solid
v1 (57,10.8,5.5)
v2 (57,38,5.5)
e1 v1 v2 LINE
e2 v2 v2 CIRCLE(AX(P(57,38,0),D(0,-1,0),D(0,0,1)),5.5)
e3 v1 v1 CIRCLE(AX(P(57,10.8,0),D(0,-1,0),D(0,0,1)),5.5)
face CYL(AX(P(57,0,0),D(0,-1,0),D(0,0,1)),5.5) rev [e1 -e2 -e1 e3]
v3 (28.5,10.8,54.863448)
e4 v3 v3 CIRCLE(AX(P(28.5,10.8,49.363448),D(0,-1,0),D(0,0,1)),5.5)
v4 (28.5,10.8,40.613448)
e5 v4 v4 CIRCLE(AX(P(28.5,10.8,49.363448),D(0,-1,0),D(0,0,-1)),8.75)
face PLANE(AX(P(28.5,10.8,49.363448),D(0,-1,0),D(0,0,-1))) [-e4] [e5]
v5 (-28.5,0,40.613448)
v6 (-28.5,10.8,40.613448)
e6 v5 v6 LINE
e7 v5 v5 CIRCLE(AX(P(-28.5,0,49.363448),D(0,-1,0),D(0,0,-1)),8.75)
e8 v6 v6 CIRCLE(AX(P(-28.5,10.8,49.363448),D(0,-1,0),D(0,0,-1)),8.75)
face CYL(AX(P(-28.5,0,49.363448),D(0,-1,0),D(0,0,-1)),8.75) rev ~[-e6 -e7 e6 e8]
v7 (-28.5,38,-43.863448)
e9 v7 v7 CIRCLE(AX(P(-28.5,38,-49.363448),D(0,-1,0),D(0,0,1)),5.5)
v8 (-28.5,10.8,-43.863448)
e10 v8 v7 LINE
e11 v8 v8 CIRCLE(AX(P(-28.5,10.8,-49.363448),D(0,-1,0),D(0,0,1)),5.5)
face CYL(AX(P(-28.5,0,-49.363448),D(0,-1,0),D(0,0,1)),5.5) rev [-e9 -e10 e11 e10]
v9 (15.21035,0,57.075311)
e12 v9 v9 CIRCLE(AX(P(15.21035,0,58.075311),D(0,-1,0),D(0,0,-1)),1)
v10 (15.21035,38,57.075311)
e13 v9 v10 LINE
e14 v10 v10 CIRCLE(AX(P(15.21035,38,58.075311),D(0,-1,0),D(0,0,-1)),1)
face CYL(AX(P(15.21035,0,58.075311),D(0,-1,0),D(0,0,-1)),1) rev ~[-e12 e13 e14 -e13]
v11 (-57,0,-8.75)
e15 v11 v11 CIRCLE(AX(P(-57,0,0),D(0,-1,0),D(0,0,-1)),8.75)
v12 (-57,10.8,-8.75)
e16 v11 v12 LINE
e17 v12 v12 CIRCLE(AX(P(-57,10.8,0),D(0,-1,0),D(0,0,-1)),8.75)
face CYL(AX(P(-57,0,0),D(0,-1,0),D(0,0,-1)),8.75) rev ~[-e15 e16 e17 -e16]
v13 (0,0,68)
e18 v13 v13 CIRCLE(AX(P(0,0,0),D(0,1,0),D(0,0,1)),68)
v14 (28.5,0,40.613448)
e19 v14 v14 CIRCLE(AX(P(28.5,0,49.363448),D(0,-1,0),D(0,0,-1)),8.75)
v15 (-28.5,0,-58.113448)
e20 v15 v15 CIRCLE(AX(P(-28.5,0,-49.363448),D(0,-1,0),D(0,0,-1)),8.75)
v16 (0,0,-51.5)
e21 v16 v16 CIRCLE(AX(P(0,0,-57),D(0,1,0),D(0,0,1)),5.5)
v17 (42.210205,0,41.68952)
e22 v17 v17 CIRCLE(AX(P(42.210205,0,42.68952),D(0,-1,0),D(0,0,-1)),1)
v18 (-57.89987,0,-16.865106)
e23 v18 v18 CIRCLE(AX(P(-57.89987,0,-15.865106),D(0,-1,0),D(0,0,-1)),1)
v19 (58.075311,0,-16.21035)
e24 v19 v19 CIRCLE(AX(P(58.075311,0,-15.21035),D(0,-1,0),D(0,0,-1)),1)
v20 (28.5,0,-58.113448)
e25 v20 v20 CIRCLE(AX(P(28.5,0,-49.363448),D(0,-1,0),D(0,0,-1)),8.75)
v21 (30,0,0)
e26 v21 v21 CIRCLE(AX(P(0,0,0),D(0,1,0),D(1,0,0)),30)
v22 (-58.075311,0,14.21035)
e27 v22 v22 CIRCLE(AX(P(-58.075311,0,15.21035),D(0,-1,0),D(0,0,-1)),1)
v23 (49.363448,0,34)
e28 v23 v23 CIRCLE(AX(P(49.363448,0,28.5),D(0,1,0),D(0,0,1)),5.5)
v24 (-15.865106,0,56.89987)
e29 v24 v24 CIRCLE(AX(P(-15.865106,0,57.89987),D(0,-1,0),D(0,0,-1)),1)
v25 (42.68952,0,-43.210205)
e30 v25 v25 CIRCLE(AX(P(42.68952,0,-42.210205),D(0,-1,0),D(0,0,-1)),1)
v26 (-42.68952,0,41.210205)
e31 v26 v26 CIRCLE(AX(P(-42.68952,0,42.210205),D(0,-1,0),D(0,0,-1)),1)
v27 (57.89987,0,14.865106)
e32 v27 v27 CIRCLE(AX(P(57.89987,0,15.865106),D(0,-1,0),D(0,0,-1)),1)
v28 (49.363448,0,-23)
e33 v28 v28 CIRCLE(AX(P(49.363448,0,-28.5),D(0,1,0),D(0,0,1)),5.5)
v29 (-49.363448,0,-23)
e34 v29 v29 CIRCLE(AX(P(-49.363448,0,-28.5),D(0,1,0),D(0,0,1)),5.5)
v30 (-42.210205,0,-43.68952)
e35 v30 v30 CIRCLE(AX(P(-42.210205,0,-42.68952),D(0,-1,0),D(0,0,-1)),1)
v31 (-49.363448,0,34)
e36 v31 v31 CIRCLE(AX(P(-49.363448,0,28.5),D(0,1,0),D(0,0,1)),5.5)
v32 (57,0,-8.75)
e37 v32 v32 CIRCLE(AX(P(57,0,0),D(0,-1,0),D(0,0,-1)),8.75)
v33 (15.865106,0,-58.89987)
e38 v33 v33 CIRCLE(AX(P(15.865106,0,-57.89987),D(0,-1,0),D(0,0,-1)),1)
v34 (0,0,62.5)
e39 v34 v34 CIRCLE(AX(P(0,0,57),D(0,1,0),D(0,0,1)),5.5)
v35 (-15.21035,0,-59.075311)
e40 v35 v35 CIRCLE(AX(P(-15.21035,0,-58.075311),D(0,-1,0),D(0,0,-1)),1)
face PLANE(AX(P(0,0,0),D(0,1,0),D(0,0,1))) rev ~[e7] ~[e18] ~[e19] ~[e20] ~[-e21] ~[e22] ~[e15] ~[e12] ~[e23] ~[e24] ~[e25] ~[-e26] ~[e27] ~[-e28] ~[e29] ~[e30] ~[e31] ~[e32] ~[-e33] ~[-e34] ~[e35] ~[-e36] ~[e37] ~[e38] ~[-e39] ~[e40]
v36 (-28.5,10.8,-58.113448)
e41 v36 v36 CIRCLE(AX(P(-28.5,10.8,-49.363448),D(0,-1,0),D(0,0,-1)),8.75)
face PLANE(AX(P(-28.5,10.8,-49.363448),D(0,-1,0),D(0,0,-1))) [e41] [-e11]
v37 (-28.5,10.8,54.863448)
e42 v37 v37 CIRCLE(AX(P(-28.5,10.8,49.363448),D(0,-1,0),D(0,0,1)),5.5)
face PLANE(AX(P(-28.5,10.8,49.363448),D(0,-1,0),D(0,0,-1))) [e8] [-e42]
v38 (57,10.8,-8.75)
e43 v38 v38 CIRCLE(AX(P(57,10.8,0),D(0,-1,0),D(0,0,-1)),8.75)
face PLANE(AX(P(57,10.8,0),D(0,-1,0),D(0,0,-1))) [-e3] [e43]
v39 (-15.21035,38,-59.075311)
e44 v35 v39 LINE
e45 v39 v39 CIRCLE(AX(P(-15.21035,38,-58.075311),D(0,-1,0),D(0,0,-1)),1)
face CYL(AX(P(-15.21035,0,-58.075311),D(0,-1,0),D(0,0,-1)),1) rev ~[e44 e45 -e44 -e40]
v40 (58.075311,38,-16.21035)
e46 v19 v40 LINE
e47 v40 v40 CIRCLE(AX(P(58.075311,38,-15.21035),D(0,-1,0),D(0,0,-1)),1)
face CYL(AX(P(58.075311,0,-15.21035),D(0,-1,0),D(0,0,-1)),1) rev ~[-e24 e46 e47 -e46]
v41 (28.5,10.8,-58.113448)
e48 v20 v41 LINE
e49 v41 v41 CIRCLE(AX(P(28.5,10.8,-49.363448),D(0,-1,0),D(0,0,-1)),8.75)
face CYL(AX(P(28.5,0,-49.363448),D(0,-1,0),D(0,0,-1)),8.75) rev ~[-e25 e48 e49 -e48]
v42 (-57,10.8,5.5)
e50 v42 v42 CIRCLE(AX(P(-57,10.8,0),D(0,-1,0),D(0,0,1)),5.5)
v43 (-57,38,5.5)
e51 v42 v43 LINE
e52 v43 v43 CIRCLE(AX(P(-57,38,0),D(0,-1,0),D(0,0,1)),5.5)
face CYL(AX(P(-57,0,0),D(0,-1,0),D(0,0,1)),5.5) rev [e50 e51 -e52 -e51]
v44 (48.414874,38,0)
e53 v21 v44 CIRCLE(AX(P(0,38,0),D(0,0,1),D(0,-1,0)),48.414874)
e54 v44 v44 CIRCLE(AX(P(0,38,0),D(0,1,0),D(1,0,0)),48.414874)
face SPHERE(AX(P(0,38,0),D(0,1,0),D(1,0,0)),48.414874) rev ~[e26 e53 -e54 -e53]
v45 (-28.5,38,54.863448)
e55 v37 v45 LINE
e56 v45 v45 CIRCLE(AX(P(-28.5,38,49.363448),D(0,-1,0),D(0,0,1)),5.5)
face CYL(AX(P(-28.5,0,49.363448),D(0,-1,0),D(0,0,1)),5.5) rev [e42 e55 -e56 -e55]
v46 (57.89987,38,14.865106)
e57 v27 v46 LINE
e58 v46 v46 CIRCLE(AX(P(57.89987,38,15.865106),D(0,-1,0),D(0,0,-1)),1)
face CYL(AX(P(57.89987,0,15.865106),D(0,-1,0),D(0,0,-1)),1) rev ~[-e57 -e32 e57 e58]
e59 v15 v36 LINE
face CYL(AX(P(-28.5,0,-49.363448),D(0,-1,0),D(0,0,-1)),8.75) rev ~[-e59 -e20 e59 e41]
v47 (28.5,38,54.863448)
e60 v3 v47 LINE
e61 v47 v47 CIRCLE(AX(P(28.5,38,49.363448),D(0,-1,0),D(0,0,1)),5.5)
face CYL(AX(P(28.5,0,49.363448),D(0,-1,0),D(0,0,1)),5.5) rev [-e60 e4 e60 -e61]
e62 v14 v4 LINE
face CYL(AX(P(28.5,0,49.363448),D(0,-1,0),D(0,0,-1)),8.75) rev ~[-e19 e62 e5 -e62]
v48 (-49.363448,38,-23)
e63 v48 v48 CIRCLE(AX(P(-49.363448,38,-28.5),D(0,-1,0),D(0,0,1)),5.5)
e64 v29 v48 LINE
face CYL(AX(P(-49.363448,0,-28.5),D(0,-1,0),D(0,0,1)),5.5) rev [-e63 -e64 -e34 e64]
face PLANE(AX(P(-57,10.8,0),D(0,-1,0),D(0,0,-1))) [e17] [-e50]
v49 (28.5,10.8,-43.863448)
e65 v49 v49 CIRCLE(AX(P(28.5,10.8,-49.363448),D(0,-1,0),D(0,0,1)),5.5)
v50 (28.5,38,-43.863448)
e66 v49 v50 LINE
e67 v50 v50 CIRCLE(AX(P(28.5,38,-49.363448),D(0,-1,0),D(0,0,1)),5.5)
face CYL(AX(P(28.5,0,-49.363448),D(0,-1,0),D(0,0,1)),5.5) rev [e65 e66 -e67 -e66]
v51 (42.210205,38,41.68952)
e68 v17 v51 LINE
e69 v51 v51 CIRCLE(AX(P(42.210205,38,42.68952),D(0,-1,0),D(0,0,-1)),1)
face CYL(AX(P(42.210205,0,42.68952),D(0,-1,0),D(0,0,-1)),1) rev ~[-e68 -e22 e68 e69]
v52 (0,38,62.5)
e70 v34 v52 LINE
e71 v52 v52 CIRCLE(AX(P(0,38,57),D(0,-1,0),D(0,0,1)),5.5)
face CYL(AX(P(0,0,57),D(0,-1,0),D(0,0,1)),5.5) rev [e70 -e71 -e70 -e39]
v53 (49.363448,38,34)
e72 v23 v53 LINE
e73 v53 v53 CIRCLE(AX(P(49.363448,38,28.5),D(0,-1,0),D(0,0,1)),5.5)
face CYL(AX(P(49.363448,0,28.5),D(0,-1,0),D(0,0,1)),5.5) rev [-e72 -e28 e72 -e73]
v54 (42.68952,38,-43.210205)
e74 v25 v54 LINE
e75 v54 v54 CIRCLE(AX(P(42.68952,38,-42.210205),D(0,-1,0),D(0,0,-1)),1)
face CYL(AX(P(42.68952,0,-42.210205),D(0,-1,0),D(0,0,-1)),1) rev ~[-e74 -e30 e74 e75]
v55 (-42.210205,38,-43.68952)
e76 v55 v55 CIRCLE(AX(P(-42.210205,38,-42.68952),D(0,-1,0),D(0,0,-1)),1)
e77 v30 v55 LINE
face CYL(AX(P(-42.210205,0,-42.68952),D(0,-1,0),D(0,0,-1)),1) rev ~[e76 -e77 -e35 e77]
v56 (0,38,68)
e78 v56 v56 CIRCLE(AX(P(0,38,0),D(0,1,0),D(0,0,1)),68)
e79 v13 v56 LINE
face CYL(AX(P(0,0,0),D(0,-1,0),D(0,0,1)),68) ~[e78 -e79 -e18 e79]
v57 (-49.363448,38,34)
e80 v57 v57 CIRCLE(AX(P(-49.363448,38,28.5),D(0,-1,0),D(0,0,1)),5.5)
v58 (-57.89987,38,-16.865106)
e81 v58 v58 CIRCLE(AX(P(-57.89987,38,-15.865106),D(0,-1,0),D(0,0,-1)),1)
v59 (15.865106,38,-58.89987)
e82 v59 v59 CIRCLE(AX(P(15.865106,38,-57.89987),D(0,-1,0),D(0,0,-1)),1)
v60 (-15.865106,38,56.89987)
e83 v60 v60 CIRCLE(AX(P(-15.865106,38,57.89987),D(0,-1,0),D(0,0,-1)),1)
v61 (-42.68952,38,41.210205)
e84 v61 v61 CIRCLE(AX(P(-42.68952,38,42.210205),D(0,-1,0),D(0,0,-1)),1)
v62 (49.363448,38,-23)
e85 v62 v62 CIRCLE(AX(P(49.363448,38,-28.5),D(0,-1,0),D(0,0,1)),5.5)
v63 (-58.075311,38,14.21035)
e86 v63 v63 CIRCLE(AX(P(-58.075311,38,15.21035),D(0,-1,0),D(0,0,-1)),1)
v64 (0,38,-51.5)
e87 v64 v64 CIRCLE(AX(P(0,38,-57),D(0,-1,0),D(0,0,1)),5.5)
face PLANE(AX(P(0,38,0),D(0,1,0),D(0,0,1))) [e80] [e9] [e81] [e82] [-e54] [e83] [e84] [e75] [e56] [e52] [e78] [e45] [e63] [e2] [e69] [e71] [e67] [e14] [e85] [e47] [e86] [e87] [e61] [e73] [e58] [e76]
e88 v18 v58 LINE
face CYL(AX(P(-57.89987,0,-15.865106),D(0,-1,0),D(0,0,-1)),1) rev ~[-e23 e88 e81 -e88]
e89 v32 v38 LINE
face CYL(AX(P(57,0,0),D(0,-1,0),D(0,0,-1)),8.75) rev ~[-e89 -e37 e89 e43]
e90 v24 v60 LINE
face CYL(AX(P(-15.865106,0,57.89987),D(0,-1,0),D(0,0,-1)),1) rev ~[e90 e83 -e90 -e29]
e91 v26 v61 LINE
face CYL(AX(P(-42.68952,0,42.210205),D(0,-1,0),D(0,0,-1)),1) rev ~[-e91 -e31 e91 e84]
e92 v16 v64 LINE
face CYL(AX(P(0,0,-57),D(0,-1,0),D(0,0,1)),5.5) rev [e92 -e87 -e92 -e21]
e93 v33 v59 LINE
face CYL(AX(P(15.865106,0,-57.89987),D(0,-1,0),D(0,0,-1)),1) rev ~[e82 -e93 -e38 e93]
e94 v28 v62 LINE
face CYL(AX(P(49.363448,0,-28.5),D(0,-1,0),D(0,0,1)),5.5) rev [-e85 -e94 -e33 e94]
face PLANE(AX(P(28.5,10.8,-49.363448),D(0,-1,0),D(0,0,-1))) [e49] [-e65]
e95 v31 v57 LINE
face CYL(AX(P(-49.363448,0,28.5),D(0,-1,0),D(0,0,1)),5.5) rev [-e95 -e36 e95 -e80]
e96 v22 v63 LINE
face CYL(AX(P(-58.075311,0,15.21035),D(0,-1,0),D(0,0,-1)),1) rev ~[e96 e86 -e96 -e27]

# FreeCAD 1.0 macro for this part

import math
import FreeCAD as App
import Part
import Sketcher
from FreeCAD import Vector
Q = App.Units.Quantity

doc = App.newDocument("Part")
body = doc.addObject("PartDesign::Body", "Body")

sketch1 = doc.addObject("Sketcher::SketchObject", "Sketch")
body.addObject(sketch1)
sketch1.AttachmentSupport = (doc.XZ_Plane, [""])
sketch1.MapMode = "FlatFace"
sketch1.addGeometry(Part.Circle(Vector(0, 0, 0), Vector(0, 0, 1), 68), False)
sketch1.addGeometry(Part.Circle(Vector(-49, -28, 0), Vector(0, 0, 1), 6), False)
sketch1.addGeometry(Part.Circle(Vector(-28, -49, 0), Vector(0, 0, 1), 6), False)
sketch1.addGeometry(Part.Circle(Vector(0, -57, 0), Vector(0, 0, 1), 6), False)
sketch1.addGeometry(Part.Circle(Vector(-57, 0, 0), Vector(0, 0, 1), 6), False)
sketch1.addGeometry(Part.Circle(Vector(-49, 28, 0), Vector(0, 0, 1), 6), False)
sketch1.addGeometry(Part.Circle(Vector(-28, 49, 0), Vector(0, 0, 1), 6), False)
sketch1.addGeometry(Part.Circle(Vector(28, -49, 0), Vector(0, 0, 1), 6), False)
sketch1.addGeometry(Part.Circle(Vector(49, -28, 0), Vector(0, 0, 1), 6), False)
sketch1.addGeometry(Part.Circle(Vector(57, 0, 0), Vector(0, 0, 1), 6), False)
sketch1.addGeometry(Part.Circle(Vector(0, 57, 0), Vector(0, 0, 1), 6), False)
sketch1.addGeometry(Part.Circle(Vector(28, 49, 0), Vector(0, 0, 1), 6), False)
sketch1.addGeometry(Part.Circle(Vector(49, 28, 0), Vector(0, 0, 1), 6), False)
sketch1.addConstraint(Sketcher.Constraint("Coincident", 0, 3, -1, 1))
sketch1.addConstraint(Sketcher.Constraint("Equal", 1, 2))
sketch1.addConstraint(Sketcher.Constraint("Equal", 2, 3))
sketch1.addConstraint(Sketcher.Constraint("Equal", 3, 4))
sketch1.addConstraint(Sketcher.Constraint("Equal", 4, 5))
sketch1.addConstraint(Sketcher.Constraint("Equal", 5, 6))
sketch1.addConstraint(Sketcher.Constraint("Equal", 6, 7))
sketch1.addConstraint(Sketcher.Constraint("Equal", 7, 8))
sketch1.addConstraint(Sketcher.Constraint("Equal", 8, 9))
sketch1.addConstraint(Sketcher.Constraint("Equal", 9, 10))
sketch1.addConstraint(Sketcher.Constraint("Equal", 10, 11))
sketch1.addConstraint(Sketcher.Constraint("Equal", 11, 12))
sketch1.addConstraint(Sketcher.Constraint("Symmetric", 6, 3, 7, 3, -1, 1))
sketch1.addConstraint(Sketcher.Constraint("Symmetric", 5, 3, 8, 3, -1, 1))
sketch1.addConstraint(Sketcher.Constraint("Symmetric", 4, 3, 9, 3, -1, 1))
sketch1.addConstraint(Sketcher.Constraint("Symmetric", 3, 3, 10, 3, -1, 1))
sketch1.addConstraint(Sketcher.Constraint("Symmetric", 2, 3, 11, 3, -1, 1))
sketch1.addConstraint(Sketcher.Constraint("Symmetric", 1, 3, 12, 3, -1, 1))
sketch1.addConstraint(Sketcher.Constraint("Symmetric", 2, 3, 7, 3, -2))
sketch1.addConstraint(Sketcher.Constraint("Symmetric", 1, 3, 8, 3, -2))
sketch1.addConstraint(Sketcher.Constraint("PointOnObject", 3, 3, -2))
sketch1.addConstraint(Sketcher.Constraint("PointOnObject", 4, 3, -1))
sketch1.addConstraint(Sketcher.Constraint("Diameter", 0, Q("136 mm")))
sketch1.addConstraint(Sketcher.Constraint("Diameter", 1, Q("11 mm")))
sketch1.addConstraint(Sketcher.Constraint("DistanceY", 3, 3, -1, 1, Q("57 mm")))
sketch1.addConstraint(Sketcher.Constraint("DistanceX", 4, 3, -1, 1, Q("57 mm")))
sketch1.addConstraint(Sketcher.Constraint("DistanceY", 1, 3, 5, 3, Q("57 mm")))
sketch1.addConstraint(Sketcher.Constraint("DistanceX", 2, 3, 7, 3, Q("57 mm")))
sketch1.addConstraint(Sketcher.Constraint("DistanceX", 1, 3, -1, 1, Q("49.363448 mm")))
sketch1.addConstraint(Sketcher.Constraint("DistanceY", 2, 3, -1, 1, Q("49.363448 mm")))
pad1 = doc.addObject("PartDesign::Pad", "Pad")
body.addObject(pad1)
pad1.Profile = sketch1
pad1.Length = 60
pad1.Reversed = True

sketch2 = doc.addObject("Sketcher::SketchObject", "Sketch001")
body.addObject(sketch2)
sketch2.AttachmentSupport = (doc.XZ_Plane, [""])
sketch2.MapMode = "FlatFace"
sketch2.AttachmentOffset = App.Placement(Vector(0, 0, -60), App.Rotation())
sketch2.addGeometry(Part.Circle(Vector(0, -57, 0), Vector(0, 0, 1), 9), False)
sketch2.addGeometry(Part.Circle(Vector(49, -28, 0), Vector(0, 0, 1), 9), False)
sketch2.addGeometry(Part.Circle(Vector(49, 28, 0), Vector(0, 0, 1), 9), False)
sketch2.addGeometry(Part.Circle(Vector(0, 57, 0), Vector(0, 0, 1), 9), False)
sketch2.addGeometry(Part.Circle(Vector(-49, 28, 0), Vector(0, 0, 1), 9), False)
sketch2.addGeometry(Part.Circle(Vector(-49, -28, 0), Vector(0, 0, 1), 9), False)
sketch2.addConstraint(Sketcher.Constraint("Equal", 0, 1))
sketch2.addConstraint(Sketcher.Constraint("Equal", 1, 2))
sketch2.addConstraint(Sketcher.Constraint("Equal", 2, 3))
sketch2.addConstraint(Sketcher.Constraint("Equal", 3, 4))
sketch2.addConstraint(Sketcher.Constraint("Equal", 4, 5))
sketch2.addConstraint(Sketcher.Constraint("Symmetric", 0, 3, 3, 3, -1, 1))
sketch2.addConstraint(Sketcher.Constraint("Symmetric", 1, 3, 4, 3, -1, 1))
sketch2.addConstraint(Sketcher.Constraint("Symmetric", 2, 3, 5, 3, -1, 1))
sketch2.addConstraint(Sketcher.Constraint("Symmetric", 2, 3, 4, 3, -2))
sketch2.addConstraint(Sketcher.Constraint("PointOnObject", 0, 3, -2))
sketch2.addConstraint(Sketcher.Constraint("Diameter", 0, Q("17.5 mm")))
sketch2.addConstraint(Sketcher.Constraint("DistanceY", 0, 3, -1, 1, Q("57 mm")))
sketch2.addConstraint(Sketcher.Constraint("DistanceY", 1, 3, 2, 3, Q("57 mm")))
sketch2.addConstraint(Sketcher.Constraint("DistanceX", -1, 1, 1, 3, Q("49.363448 mm")))
pocket1 = doc.addObject("PartDesign::Pocket", "Pocket")
body.addObject(pocket1)
pocket1.Profile = sketch2
pocket1.Length = 10.8
pocket1.Reversed = True

sketch3 = doc.addObject("Sketcher::SketchObject", "Sketch002")
body.addObject(sketch3)
sketch3.AttachmentSupport = (doc.XZ_Plane, [""])
sketch3.MapMode = "FlatFace"
sketch3.addGeometry(Part.Circle(Vector(28, 49, 0), Vector(0, 0, 1), 9), False)
sketch3.addGeometry(Part.Circle(Vector(57, 0, 0), Vector(0, 0, 1), 9), False)
sketch3.addGeometry(Part.Circle(Vector(28, -49, 0), Vector(0, 0, 1), 9), False)
sketch3.addGeometry(Part.Circle(Vector(-28, -49, 0), Vector(0, 0, 1), 9), False)
sketch3.addGeometry(Part.Circle(Vector(-57, 0, 0), Vector(0, 0, 1), 9), False)
sketch3.addGeometry(Part.Circle(Vector(-28, 49, 0), Vector(0, 0, 1), 9), False)
sketch3.addConstraint(Sketcher.Constraint("Equal", 0, 1))
sketch3.addConstraint(Sketcher.Constraint("Equal", 1, 2))
sketch3.addConstraint(Sketcher.Constraint("Equal", 2, 3))
sketch3.addConstraint(Sketcher.Constraint("Equal", 3, 4))
sketch3.addConstraint(Sketcher.Constraint("Equal", 4, 5))
sketch3.addConstraint(Sketcher.Constraint("Symmetric", 0, 3, 3, 3, -1, 1))
sketch3.addConstraint(Sketcher.Constraint("Symmetric", 1, 3, 4, 3, -1, 1))
sketch3.addConstraint(Sketcher.Constraint("Symmetric", 2, 3, 5, 3, -1, 1))
sketch3.addConstraint(Sketcher.Constraint("Symmetric", 2, 3, 3, 3, -2))
sketch3.addConstraint(Sketcher.Constraint("PointOnObject", 1, 3, -1))
sketch3.addConstraint(Sketcher.Constraint("Diameter", 0, Q("17.5 mm")))
sketch3.addConstraint(Sketcher.Constraint("DistanceX", -1, 1, 1, 3, Q("57 mm")))
sketch3.addConstraint(Sketcher.Constraint("DistanceX", 3, 3, 2, 3, Q("57 mm")))
sketch3.addConstraint(Sketcher.Constraint("DistanceY", -1, 1, 0, 3, Q("49.363448 mm")))
pocket2 = doc.addObject("PartDesign::Pocket", "Pocket001")
body.addObject(pocket2)
pocket2.Profile = sketch3
pocket2.Length = 10.8

sketch4 = doc.addObject("Sketcher::SketchObject", "Sketch003")
body.addObject(sketch4)
sketch4.AttachmentSupport = (doc.XZ_Plane, [""])
sketch4.MapMode = "FlatFace"
sketch4.AttachmentOffset = App.Placement(Vector(0, 0, -38), App.Rotation())
sketch4.addGeometry(Part.Circle(Vector(0, 0, 0), Vector(0, 0, 1), 68), False)
sketch4.addConstraint(Sketcher.Constraint("Coincident", 0, 3, -1, 1))
sketch4.addConstraint(Sketcher.Constraint("Diameter", 0, Q("136 mm")))
pocket3 = doc.addObject("PartDesign::Pocket", "Pocket002")
body.addObject(pocket3)
pocket3.Profile = sketch4
pocket3.Length = 22

sketch5 = doc.addObject("Sketcher::SketchObject", "Sketch004")
body.addObject(sketch5)
sketch5.AttachmentSupport = (doc.XY_Plane, [""])
sketch5.MapMode = "FlatFace"
sketch5.addGeometry(Part.ArcOfCircle(Part.Circle(Vector(0, 38, 0), Vector(0, 0, 1), 48), math.radians(-90), math.radians(90)), False)
sketch5.addGeometry(Part.LineSegment(Vector(0, 86, 0), Vector(0, -10, 0)), False)
sketch5.addConstraint(Sketcher.Constraint("Coincident", 0, 1, 1, 2))
sketch5.addConstraint(Sketcher.Constraint("Coincident", 1, 1, 0, 2))
sketch5.addConstraint(Sketcher.Constraint("Vertical", 1))
sketch5.addConstraint(Sketcher.Constraint("PointOnObject", 0, 3, -2))
sketch5.addConstraint(Sketcher.Constraint("PointOnObject", 0, 1, -2))
sketch5.addConstraint(Sketcher.Constraint("DistanceY", -1, 1, 0, 3, Q("38 mm")))
sketch5.addConstraint(Sketcher.Constraint("Radius", 0, Q("48.414874 mm")))
groove = doc.addObject("PartDesign::Groove", "Groove")
body.addObject(groove)
groove.Profile = sketch5
groove.ReferenceAxis = (sketch5, ["V_Axis"])
groove.Angle = 360

sketch6 = doc.addObject("Sketcher::SketchObject", "Sketch005")
body.addObject(sketch6)
sketch6.AttachmentSupport = (doc.XZ_Plane, [""])
sketch6.MapMode = "FlatFace"
sketch6.addGeometry(Part.Circle(Vector(15.2, 58.1, 0), Vector(0, 0, 1), 1), False)
sketch6.addGeometry(Part.Circle(Vector(42.2, 42.7, 0), Vector(0, 0, 1), 1), False)
sketch6.addGeometry(Part.Circle(Vector(57.9, 15.9, 0), Vector(0, 0, 1), 1), False)
sketch6.addGeometry(Part.Circle(Vector(58.1, -15.2, 0), Vector(0, 0, 1), 1), False)
sketch6.addGeometry(Part.Circle(Vector(42.7, -42.2, 0), Vector(0, 0, 1), 1), False)
sketch6.addGeometry(Part.Circle(Vector(15.9, -57.9, 0), Vector(0, 0, 1), 1), False)
sketch6.addGeometry(Part.Circle(Vector(-15.2, -58.1, 0), Vector(0, 0, 1), 1), False)
sketch6.addGeometry(Part.Circle(Vector(-42.2, -42.7, 0), Vector(0, 0, 1), 1), False)
sketch6.addGeometry(Part.Circle(Vector(-57.9, -15.9, 0), Vector(0, 0, 1), 1), False)
sketch6.addGeometry(Part.Circle(Vector(-58.1, 15.2, 0), Vector(0, 0, 1), 1), False)
sketch6.addGeometry(Part.Circle(Vector(-42.7, 42.2, 0), Vector(0, 0, 1), 1), False)
sketch6.addGeometry(Part.Circle(Vector(-15.9, 57.9, 0), Vector(0, 0, 1), 1), False)
sketch6.addConstraint(Sketcher.Constraint("Equal", 0, 1))
sketch6.addConstraint(Sketcher.Constraint("Equal", 1, 2))
sketch6.addConstraint(Sketcher.Constraint("Equal", 2, 3))
sketch6.addConstraint(Sketcher.Constraint("Equal", 3, 4))
sketch6.addConstraint(Sketcher.Constraint("Equal", 4, 5))
sketch6.addConstraint(Sketcher.Constraint("Equal", 5, 6))
sketch6.addConstraint(Sketcher.Constraint("Equal", 6, 7))
sketch6.addConstraint(Sketcher.Constraint("Equal", 7, 8))
sketch6.addConstraint(Sketcher.Constraint("Equal", 8, 9))
sketch6.addConstraint(Sketcher.Constraint("Equal", 9, 10))
sketch6.addConstraint(Sketcher.Constraint("Equal", 10, 11))
sketch6.addConstraint(Sketcher.Constraint("Symmetric", 0, 3, 6, 3, -1, 1))
sketch6.addConstraint(Sketcher.Constraint("Symmetric", 1, 3, 7, 3, -1, 1))
sketch6.addConstraint(Sketcher.Constraint("Symmetric", 2, 3, 8, 3, -1, 1))
sketch6.addConstraint(Sketcher.Constraint("Symmetric", 3, 3, 9, 3, -1, 1))
sketch6.addConstraint(Sketcher.Constraint("Symmetric", 4, 3, 10, 3, -1, 1))
sketch6.addConstraint(Sketcher.Constraint("Symmetric", 5, 3, 11, 3, -1, 1))
sketch6.addConstraint(Sketcher.Constraint("Diameter", 0, Q("2 mm")))
sketch6.addConstraint(Sketcher.Constraint("DistanceX", 5, 3, 1, 3, Q("26.345099 mm")))
sketch6.addConstraint(Sketcher.Constraint("DistanceY", 4, 3, 8, 3, Q("26.345099 mm")))
sketch6.addConstraint(Sketcher.Constraint("DistanceX", -1, 1, 0, 3, Q("15.21035 mm")))
sketch6.addConstraint(Sketcher.Constraint("DistanceY", -1, 1, 0, 3, Q("58.075311 mm")))
sketch6.addConstraint(Sketcher.Constraint("DistanceY", -1, 1, 1, 3, Q("42.68952 mm")))
sketch6.addConstraint(Sketcher.Constraint("DistanceX", -1, 1, 2, 3, Q("57.89987 mm")))
sketch6.addConstraint(Sketcher.Constraint("DistanceX", -1, 1, 3, 3, Q("58.075311 mm")))
sketch6.addConstraint(Sketcher.Constraint("DistanceY", 3, 3, -1, 1, Q("15.21035 mm")))
sketch6.addConstraint(Sketcher.Constraint("DistanceX", -1, 1, 4, 3, Q("42.68952 mm")))
sketch6.addConstraint(Sketcher.Constraint("DistanceY", 5, 3, -1, 1, Q("57.89987 mm")))
sketch6.addConstraint(Sketcher.Constraint("DistanceY", 4, 3, 2, 3, Q("58.075311 mm")))
sketch6.addConstraint(Sketcher.Constraint("DistanceX", 7, 3, 5, 3, Q("58.075311 mm")))
pocket4 = doc.addObject("PartDesign::Pocket", "Pocket003")
body.addObject(pocket4)
pocket4.Profile = sketch6
pocket4.Type = "ThroughAll"

doc.recompute()
